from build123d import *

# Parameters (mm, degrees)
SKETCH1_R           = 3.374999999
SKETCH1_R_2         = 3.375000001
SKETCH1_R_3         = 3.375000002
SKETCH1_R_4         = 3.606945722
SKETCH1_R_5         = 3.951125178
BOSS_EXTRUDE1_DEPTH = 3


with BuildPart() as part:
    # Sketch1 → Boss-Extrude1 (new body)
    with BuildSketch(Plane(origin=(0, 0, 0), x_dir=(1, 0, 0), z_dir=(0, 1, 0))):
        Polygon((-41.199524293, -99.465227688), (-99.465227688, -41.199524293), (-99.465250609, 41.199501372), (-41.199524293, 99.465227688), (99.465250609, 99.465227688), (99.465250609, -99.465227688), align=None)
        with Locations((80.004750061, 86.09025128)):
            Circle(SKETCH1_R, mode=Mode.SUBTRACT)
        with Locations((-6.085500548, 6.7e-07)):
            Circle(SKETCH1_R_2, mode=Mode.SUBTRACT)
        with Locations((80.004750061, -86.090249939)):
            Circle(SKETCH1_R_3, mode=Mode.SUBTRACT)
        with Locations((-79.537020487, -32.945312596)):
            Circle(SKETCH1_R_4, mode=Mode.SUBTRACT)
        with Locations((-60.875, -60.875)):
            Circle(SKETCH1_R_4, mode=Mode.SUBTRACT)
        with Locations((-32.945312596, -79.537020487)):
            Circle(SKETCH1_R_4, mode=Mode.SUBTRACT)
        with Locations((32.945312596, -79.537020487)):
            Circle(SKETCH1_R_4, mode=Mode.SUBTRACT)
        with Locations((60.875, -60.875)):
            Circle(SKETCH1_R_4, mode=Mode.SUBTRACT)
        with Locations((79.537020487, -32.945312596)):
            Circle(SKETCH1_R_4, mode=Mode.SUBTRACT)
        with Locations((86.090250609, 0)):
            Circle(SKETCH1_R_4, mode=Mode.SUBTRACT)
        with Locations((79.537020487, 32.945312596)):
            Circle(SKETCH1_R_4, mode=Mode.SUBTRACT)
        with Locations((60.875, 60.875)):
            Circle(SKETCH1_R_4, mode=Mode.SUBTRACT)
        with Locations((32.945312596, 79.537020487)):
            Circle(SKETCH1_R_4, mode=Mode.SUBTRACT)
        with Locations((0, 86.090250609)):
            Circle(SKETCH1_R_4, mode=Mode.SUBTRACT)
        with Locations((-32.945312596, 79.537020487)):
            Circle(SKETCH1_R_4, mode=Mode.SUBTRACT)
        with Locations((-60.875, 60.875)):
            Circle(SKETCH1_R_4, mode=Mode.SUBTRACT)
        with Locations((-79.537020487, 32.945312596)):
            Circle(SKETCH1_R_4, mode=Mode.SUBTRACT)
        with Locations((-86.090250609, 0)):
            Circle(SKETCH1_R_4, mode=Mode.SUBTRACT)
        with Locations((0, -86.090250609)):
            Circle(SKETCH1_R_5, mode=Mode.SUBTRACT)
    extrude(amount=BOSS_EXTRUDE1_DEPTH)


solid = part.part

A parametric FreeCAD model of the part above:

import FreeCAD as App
import Part
import Sketcher
from FreeCAD import Vector
Q = App.Units.Quantity


def add_polygon(sketch, points):
    """Adds a closed chain of lines whose ends are joined by coincident constraints."""
    first, n = sketch.GeometryCount, len(points)
    for a, b in zip(points, points[1:] + points[:1]):
        sketch.addGeometry(Part.LineSegment(App.Vector(*a, 0), App.Vector(*b, 0)), False)
    for i in range(n):
        sketch.addConstraint(Sketcher.Constraint("Coincident", first + i, 2, first + (i + 1) % n, 1))

doc = App.newDocument("Part")
body = doc.addObject("PartDesign::Body", "Body")

# Sketch on XZ plane
sketch1 = doc.addObject("Sketcher::SketchObject", "Sketch")
body.addObject(sketch1)
sketch1.AttachmentSupport = (doc.XZ_Plane, [""])
sketch1.MapMode = "FlatFace"
add_polygon(sketch1, [(-99.5, 41.2), (-41.2, 99.5), (99.5, 99.5), (99.5, -99.5), (-41.2, -99.5), (-99.5, -41.2)])  # lines 0-5
sketch1.addGeometry(Part.Circle(Vector(80, 86.1, 0), Vector(0, 0, 1), 3.4), False)  # 6
sketch1.addGeometry(Part.Circle(Vector(60.9, 60.9, 0), Vector(0, 0, 1), 3.6), False)  # 7
sketch1.addGeometry(Part.Circle(Vector(32.9, 79.5, 0), Vector(0, 0, 1), 3.6), False)  # 8
sketch1.addGeometry(Part.Circle(Vector(79.5, 32.9, 0), Vector(0, 0, 1), 3.6), False)  # 9
sketch1.addGeometry(Part.Circle(Vector(0, 86.1, 0), Vector(0, 0, 1), 4), False)  # 10
sketch1.addGeometry(Part.Circle(Vector(-32.9, 79.5, 0), Vector(0, 0, 1), 3.6), False)  # 11
sketch1.addGeometry(Part.Circle(Vector(-60.9, 60.9, 0), Vector(0, 0, 1), 3.6), False)  # 12
sketch1.addGeometry(Part.Circle(Vector(-79.5, 32.9, 0), Vector(0, 0, 1), 3.6), False)  # 13
sketch1.addGeometry(Part.Circle(Vector(86.1, 0, 0), Vector(0, 0, 1), 3.6), False)  # 14
sketch1.addGeometry(Part.Circle(Vector(79.5, -32.9, 0), Vector(0, 0, 1), 3.6), False)  # 15
sketch1.addGeometry(Part.Circle(Vector(60.9, -60.9, 0), Vector(0, 0, 1), 3.6), False)  # 16
sketch1.addGeometry(Part.Circle(Vector(80, -86.1, 0), Vector(0, 0, 1), 3.4), False)  # 17
sketch1.addGeometry(Part.Circle(Vector(32.9, -79.5, 0), Vector(0, 0, 1), 3.6), False)  # 18
sketch1.addGeometry(Part.Circle(Vector(-6.1, 0, 0), Vector(0, 0, 1), 3.4), False)  # 19
sketch1.addGeometry(Part.Circle(Vector(-86.1, 0, 0), Vector(0, 0, 1), 3.6), False)  # 20
sketch1.addGeometry(Part.Circle(Vector(-79.5, -32.9, 0), Vector(0, 0, 1), 3.6), False)  # 21
sketch1.addGeometry(Part.Circle(Vector(0, -86.1, 0), Vector(0, 0, 1), 3.6), False)  # 22
sketch1.addGeometry(Part.Circle(Vector(-32.9, -79.5, 0), Vector(0, 0, 1), 3.6), False)  # 23
sketch1.addGeometry(Part.Circle(Vector(-60.9, -60.9, 0), Vector(0, 0, 1), 3.6), False)  # 24
sketch1.addConstraint(Sketcher.Constraint("Horizontal", 1))
sketch1.addConstraint(Sketcher.Constraint("Vertical", 2))
sketch1.addConstraint(Sketcher.Constraint("Horizontal", 3))
sketch1.addConstraint(Sketcher.Constraint("Equal", 7, 8))
sketch1.addConstraint(Sketcher.Constraint("Equal", 8, 9))
sketch1.addConstraint(Sketcher.Constraint("Equal", 9, 11))
sketch1.addConstraint(Sketcher.Constraint("Equal", 11, 12))
sketch1.addConstraint(Sketcher.Constraint("Equal", 12, 13))
sketch1.addConstraint(Sketcher.Constraint("Equal", 13, 14))
sketch1.addConstraint(Sketcher.Constraint("Equal", 14, 15))
sketch1.addConstraint(Sketcher.Constraint("Equal", 15, 16))
sketch1.addConstraint(Sketcher.Constraint("Equal", 6, 17))
sketch1.addConstraint(Sketcher.Constraint("Equal", 16, 18))
sketch1.addConstraint(Sketcher.Constraint("Equal", 17, 19))
sketch1.addConstraint(Sketcher.Constraint("Equal", 18, 20))
sketch1.addConstraint(Sketcher.Constraint("Equal", 20, 21))
sketch1.addConstraint(Sketcher.Constraint("Equal", 21, 22))
sketch1.addConstraint(Sketcher.Constraint("Equal", 22, 23))
sketch1.addConstraint(Sketcher.Constraint("Equal", 23, 24))
sketch1.addConstraint(Sketcher.Constraint("Symmetric", 13, 3, 15, 3, -1, 1))
sketch1.addConstraint(Sketcher.Constraint("Symmetric", 12, 3, 16, 3, -1, 1))
sketch1.addConstraint(Sketcher.Constraint("Symmetric", 11, 3, 18, 3, -1, 1))
sketch1.addConstraint(Sketcher.Constraint("Symmetric", 14, 3, 20, 3, -1, 1))
sketch1.addConstraint(Sketcher.Constraint("Symmetric", 9, 3, 21, 3, -1, 1))
sketch1.addConstraint(Sketcher.Constraint("Symmetric", 10, 3, 22, 3, -1, 1))
sketch1.addConstraint(Sketcher.Constraint("Symmetric", 8, 3, 23, 3, -1, 1))
sketch1.addConstraint(Sketcher.Constraint("Symmetric", 7, 3, 24, 3, -1, 1))
sketch1.addConstraint(Sketcher.Constraint("Symmetric", 8, 3, 11, 3, -2))
sketch1.addConstraint(Sketcher.Constraint("Symmetric", 7, 3, 12, 3, -2))
sketch1.addConstraint(Sketcher.Constraint("Symmetric", 9, 3, 13, 3, -2))
sketch1.addConstraint(Sketcher.Constraint("Symmetric", 6, 3, 17, 3, -1))
sketch1.addConstraint(Sketcher.Constraint("Symmetric", 0, 2, 3, 2, -1))
sketch1.addConstraint(Sketcher.Constraint("PointOnObject", 10, 3, -2))
sketch1.addConstraint(Sketcher.Constraint("PointOnObject", 14, 3, -1))
sketch1.addConstraint(Sketcher.Constraint("PointOnObject", 19, 3, -1))
sketch1.addConstraint(Sketcher.Constraint("Perpendicular", 0, 4))
sketch1.addConstraint(Sketcher.Constraint("Horizontal", 6, 3, 10, 3))
sketch1.addConstraint(Sketcher.Constraint("Diameter", 6, 6.75))
sketch1.addConstraint(Sketcher.Constraint("Angle", 0, Q("45 deg")))
sketch1.addConstraint(Sketcher.Constraint("Angle", 5, Q("89.999984 deg")))
sketch1.addConstraint(Sketcher.Constraint("Diameter", 7, 7.213891))
sketch1.addConstraint(Sketcher.Constraint("Diameter", 10, 7.90225))
sketch1.addConstraint(Sketcher.Constraint("DistanceX", 12, 3, 7, 3, 121.75))
sketch1.addConstraint(Sketcher.Constraint("DistanceY", 16, 3, 7, 3, 121.75))
sketch1.addConstraint(Sketcher.Constraint("DistanceX", 14, 3, 1, 2, 13.375))
sketch1.addConstraint(Sketcher.Constraint("DistanceX", 4, 2, 20, 3, 13.375))
sketch1.addConstraint(Sketcher.Constraint("DistanceX", 19, 3, -1, 1, 6.085501))
sketch1.addConstraint(Sketcher.Constraint("DistanceY", 4, 2, -1, 1, 41.199501))
sketch1.addConstraint(Sketcher.Constraint("DistanceX", 6, 3, 14, 3, 6.085501))
sketch1.addConstraint(Sketcher.Constraint("Distance", 4, 82.40018))
sketch1.addConstraint(Sketcher.Constraint("DistanceX", 1, 1, 1, 2, 140.664775))
sketch1.addConstraint(Sketcher.Constraint("DistanceY", -1, 1, 6, 3, 86.09025))
sketch1.addConstraint(Sketcher.Constraint("DistanceY", -1, 1, 8, 3, 79.53702))
sketch1.addConstraint(Sketcher.Constraint("DistanceX", -1, 1, 9, 3, 79.53702))
sketch1.addConstraint(Sketcher.Constraint("DistanceY", 9, 3, 10, 3, 53.144938))
sketch1.addConstraint(Sketcher.Constraint("DistanceX", 8, 3, 14, 3, 53.144938))
pad1 = doc.addObject("PartDesign::Pad", "Pad")
body.addObject(pad1)
pad1.Profile = sketch1
pad1.Length = 3
pad1.Reversed = True

doc.recompute()
